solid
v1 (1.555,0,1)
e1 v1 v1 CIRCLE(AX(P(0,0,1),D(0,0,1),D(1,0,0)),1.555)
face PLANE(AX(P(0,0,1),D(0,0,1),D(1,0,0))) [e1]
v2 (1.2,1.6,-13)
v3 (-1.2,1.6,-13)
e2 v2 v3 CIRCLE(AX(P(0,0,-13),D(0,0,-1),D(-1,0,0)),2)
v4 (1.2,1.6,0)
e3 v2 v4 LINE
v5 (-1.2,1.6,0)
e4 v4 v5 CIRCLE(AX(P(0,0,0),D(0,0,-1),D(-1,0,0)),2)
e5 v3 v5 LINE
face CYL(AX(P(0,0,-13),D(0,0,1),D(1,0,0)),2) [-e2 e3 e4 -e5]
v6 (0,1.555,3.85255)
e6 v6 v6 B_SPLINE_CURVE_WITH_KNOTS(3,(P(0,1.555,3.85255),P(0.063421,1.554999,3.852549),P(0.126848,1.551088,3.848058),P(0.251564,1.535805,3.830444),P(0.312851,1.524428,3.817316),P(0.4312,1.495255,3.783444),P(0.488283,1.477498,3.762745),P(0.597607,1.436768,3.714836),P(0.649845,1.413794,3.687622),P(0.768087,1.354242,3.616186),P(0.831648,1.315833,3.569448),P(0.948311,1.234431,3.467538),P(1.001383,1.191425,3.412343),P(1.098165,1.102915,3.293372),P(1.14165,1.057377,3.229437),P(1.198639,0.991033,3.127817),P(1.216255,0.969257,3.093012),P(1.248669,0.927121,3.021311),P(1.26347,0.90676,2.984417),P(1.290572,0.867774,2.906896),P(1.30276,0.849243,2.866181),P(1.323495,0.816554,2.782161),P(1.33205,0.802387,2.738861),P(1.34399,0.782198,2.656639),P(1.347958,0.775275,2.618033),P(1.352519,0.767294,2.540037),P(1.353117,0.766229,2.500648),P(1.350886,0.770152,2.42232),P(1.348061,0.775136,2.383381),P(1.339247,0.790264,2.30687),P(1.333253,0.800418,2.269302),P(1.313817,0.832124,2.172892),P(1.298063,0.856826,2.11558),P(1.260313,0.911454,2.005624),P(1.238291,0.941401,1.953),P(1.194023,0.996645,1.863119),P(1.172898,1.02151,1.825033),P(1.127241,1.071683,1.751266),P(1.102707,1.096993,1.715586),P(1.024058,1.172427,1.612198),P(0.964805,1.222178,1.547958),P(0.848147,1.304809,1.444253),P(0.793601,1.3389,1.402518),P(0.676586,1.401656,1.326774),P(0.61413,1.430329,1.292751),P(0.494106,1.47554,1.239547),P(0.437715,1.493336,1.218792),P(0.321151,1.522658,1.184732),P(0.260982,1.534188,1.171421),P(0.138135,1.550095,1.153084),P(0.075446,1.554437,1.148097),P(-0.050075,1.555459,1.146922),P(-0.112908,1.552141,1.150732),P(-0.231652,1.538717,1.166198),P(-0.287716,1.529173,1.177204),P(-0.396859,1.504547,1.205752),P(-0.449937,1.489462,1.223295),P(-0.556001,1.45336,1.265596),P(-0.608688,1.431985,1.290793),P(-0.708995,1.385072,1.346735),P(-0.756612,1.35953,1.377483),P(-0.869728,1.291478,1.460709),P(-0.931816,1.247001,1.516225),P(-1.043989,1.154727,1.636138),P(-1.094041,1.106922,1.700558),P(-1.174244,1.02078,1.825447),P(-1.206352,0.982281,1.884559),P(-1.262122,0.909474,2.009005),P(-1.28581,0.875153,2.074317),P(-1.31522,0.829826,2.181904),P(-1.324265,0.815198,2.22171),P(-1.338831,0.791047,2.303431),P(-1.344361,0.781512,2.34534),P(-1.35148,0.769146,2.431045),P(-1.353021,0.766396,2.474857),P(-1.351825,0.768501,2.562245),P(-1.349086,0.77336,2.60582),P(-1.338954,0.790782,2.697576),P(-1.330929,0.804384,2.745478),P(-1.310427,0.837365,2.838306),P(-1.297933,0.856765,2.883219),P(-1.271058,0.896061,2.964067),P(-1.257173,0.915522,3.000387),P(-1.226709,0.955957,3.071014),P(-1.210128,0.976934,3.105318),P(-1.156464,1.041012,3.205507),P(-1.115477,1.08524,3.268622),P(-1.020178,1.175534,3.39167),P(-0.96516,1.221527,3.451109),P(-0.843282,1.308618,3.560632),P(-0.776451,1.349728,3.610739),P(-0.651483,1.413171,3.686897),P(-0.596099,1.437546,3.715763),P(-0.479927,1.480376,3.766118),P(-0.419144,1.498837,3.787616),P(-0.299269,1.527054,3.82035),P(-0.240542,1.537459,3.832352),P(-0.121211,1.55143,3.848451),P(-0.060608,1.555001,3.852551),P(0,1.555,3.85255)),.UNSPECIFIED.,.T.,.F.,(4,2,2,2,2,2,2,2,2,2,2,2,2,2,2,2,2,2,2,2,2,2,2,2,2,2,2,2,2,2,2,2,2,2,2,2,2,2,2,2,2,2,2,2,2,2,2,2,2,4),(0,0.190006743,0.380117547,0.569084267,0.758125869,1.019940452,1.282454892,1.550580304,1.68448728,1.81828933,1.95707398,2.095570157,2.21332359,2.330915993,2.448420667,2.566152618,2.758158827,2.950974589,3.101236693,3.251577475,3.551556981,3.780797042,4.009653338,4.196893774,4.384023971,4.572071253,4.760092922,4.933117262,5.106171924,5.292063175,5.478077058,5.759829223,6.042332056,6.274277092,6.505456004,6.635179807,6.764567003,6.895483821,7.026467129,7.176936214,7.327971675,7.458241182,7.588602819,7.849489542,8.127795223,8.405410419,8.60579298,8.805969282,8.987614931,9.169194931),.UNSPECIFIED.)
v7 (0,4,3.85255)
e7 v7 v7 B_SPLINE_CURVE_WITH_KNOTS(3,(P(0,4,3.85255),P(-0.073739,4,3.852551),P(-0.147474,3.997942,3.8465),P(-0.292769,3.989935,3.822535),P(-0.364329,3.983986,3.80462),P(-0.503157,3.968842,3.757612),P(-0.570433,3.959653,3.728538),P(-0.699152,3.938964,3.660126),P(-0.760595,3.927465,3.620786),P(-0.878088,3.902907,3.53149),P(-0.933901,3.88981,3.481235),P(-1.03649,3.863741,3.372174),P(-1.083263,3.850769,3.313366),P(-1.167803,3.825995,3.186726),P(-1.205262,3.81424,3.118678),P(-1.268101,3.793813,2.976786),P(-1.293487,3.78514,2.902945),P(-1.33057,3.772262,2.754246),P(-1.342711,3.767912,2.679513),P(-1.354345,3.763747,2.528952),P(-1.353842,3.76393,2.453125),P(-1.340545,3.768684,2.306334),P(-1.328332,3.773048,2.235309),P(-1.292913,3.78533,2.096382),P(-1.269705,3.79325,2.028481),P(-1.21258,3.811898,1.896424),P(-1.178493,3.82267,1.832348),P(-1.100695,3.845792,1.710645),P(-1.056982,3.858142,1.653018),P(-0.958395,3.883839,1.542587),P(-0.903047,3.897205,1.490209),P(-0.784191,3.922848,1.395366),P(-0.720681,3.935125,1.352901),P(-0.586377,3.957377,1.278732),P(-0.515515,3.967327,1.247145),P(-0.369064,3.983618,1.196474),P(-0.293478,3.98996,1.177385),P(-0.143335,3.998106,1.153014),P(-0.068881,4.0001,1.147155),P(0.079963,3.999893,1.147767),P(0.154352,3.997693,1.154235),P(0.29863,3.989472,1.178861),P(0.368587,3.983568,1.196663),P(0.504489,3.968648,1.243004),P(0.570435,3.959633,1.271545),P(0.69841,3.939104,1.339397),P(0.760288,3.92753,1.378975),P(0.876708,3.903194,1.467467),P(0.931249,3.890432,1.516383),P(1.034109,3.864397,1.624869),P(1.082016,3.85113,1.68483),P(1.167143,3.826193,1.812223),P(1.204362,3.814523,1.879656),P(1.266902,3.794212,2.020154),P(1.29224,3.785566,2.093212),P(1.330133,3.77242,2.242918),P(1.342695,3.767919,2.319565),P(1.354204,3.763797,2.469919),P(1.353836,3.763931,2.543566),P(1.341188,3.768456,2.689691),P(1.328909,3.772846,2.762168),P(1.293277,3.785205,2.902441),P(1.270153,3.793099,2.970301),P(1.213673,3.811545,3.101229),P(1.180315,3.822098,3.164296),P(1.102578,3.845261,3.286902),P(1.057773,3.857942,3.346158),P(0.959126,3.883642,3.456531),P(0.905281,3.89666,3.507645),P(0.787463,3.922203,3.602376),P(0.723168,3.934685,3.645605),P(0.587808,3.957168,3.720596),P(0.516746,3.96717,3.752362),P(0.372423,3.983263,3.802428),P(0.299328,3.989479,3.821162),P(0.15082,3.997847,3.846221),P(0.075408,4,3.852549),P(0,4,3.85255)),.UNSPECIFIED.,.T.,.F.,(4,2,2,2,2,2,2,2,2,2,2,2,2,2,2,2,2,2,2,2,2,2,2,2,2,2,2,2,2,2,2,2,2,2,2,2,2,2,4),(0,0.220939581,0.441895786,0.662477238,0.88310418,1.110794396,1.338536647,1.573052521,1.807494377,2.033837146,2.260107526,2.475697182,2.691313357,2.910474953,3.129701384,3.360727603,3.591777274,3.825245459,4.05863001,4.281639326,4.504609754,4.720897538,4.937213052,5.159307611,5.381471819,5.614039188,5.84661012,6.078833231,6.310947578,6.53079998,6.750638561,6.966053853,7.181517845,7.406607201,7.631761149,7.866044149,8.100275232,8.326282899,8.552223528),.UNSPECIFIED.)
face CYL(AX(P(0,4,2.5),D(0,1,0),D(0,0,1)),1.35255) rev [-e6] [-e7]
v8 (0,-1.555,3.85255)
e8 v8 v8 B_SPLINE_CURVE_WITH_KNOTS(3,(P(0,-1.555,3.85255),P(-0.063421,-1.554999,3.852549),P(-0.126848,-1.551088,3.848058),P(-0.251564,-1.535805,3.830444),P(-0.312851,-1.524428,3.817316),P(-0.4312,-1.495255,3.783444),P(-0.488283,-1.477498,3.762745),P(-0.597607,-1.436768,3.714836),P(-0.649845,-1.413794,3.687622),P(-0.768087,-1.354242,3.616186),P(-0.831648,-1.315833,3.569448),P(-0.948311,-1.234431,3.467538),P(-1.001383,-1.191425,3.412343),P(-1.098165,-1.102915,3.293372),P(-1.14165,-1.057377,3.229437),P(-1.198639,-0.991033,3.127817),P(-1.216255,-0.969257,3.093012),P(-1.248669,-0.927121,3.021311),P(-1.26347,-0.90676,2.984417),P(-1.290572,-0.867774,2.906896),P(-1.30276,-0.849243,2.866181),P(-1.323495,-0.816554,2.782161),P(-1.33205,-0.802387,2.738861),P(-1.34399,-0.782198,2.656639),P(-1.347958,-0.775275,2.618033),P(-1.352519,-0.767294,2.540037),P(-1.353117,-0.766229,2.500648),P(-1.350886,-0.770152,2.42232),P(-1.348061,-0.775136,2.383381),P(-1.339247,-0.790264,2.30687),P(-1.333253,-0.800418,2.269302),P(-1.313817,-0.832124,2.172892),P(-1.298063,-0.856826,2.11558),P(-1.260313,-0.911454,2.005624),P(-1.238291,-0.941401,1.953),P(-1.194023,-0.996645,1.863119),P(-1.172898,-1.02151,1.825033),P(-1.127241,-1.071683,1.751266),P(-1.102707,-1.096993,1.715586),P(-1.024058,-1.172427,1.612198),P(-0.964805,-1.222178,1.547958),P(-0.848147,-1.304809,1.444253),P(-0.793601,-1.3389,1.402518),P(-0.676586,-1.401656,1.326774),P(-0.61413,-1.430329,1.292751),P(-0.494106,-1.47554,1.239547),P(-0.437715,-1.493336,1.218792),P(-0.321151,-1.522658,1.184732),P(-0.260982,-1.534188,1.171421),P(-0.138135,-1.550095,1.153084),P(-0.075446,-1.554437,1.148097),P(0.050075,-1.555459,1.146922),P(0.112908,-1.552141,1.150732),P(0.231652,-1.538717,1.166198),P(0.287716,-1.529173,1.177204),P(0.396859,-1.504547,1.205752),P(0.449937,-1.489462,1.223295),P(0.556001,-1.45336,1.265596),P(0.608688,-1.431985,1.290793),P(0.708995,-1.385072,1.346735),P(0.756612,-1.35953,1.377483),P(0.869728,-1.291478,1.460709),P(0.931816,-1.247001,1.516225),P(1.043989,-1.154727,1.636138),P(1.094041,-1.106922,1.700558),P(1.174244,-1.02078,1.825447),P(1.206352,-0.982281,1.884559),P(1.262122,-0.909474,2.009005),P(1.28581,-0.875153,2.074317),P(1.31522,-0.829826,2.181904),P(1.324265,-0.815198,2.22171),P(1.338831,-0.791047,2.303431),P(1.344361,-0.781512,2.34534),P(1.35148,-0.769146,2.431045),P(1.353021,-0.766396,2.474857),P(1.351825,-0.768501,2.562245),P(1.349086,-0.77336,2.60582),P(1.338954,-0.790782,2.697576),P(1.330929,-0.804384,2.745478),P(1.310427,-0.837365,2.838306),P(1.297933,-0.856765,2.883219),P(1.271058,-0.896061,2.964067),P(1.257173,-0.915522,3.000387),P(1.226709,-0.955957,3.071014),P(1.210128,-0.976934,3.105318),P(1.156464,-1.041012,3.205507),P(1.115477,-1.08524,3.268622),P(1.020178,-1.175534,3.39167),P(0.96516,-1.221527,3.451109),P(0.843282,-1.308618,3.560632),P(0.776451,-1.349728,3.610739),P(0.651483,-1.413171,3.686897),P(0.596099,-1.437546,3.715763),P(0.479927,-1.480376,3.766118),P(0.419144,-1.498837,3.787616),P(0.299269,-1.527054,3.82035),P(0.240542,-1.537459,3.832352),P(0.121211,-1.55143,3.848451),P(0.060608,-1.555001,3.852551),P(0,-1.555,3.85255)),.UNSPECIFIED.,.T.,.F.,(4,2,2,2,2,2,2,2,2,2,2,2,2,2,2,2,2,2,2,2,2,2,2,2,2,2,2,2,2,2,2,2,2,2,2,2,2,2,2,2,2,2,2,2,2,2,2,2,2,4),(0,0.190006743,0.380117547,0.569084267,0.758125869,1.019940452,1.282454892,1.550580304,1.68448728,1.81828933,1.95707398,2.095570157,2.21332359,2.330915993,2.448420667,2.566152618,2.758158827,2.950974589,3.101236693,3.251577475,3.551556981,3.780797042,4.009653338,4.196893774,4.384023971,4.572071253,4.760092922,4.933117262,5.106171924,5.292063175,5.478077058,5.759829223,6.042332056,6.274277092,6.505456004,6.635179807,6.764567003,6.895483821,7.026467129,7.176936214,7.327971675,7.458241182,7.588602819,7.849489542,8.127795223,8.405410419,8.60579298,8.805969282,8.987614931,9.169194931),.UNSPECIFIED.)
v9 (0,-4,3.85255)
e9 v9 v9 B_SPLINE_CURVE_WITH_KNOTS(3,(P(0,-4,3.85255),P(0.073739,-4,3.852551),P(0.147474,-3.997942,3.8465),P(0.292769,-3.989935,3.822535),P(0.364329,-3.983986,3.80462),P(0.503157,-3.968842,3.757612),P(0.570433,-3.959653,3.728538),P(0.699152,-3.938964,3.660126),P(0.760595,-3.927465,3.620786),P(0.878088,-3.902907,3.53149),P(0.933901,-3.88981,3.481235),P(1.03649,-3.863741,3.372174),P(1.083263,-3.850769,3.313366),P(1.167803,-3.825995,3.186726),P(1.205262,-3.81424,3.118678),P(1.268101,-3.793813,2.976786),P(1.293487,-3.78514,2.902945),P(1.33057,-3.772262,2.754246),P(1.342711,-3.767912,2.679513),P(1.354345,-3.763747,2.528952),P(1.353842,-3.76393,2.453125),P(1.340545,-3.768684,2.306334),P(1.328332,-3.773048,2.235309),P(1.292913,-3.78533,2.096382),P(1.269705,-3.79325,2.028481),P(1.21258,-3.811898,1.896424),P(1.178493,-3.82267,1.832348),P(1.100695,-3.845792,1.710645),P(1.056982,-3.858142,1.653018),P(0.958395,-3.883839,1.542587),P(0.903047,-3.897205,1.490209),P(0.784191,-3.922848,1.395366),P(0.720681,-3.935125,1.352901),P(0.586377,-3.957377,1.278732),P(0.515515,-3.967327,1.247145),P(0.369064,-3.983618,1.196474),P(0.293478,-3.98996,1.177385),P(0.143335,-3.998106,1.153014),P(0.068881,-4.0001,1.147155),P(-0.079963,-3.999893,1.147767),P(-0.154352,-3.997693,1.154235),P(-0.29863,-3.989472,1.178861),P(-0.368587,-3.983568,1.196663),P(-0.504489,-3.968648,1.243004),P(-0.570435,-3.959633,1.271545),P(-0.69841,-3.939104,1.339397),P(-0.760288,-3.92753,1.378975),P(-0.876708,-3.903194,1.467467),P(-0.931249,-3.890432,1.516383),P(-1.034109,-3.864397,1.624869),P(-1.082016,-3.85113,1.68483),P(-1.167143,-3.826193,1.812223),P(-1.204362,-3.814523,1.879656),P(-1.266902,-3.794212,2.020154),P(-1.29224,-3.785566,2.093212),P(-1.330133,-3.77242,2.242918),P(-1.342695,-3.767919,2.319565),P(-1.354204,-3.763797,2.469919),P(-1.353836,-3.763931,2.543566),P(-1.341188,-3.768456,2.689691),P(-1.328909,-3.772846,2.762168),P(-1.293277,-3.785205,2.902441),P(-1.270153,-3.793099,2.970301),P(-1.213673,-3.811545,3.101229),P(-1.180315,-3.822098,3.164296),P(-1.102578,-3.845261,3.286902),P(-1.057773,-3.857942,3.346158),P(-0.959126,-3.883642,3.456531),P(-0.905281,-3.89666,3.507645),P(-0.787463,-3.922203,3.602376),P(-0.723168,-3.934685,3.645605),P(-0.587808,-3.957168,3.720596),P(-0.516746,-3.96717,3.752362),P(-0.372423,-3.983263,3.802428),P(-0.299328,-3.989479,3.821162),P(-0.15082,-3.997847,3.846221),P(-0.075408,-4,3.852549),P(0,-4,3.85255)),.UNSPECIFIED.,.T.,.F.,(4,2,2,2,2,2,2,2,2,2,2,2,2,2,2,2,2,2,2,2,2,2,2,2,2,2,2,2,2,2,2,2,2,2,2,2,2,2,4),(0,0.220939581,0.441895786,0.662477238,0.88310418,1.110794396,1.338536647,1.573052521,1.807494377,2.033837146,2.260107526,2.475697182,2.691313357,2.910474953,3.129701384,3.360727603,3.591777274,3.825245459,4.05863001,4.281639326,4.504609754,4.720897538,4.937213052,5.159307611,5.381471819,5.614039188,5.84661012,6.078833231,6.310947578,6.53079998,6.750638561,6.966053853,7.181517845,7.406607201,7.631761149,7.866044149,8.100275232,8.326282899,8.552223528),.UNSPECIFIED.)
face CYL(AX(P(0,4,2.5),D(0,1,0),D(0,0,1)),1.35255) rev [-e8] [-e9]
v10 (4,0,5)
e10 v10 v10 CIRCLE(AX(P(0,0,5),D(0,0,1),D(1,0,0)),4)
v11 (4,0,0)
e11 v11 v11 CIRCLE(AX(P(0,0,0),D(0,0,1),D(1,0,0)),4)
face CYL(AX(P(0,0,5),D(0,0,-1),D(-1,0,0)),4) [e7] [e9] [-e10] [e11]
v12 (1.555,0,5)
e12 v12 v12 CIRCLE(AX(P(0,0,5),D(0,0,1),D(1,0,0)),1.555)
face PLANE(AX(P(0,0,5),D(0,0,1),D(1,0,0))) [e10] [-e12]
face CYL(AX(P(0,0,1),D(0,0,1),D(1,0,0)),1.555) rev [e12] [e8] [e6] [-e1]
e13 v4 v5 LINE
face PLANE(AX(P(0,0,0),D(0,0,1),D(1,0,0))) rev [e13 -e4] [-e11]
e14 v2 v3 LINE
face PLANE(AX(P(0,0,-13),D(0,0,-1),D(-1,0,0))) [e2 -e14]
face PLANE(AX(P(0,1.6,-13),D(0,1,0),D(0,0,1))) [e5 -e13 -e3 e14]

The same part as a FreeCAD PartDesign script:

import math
import FreeCAD as App
import Part
import Sketcher
from FreeCAD import Vector
Q = App.Units.Quantity

doc = App.newDocument("Part")
body = doc.addObject("PartDesign::Body", "Body")

# Sketch on XY plane
sketch1 = body.newObject("Sketcher::SketchObject", "Sketch")
sketch1.AttachmentSupport = (doc.getObject("XY_Plane"), [""])
sketch1.MapMode = "FlatFace"
sketch1.addGeometry(Part.Circle(Vector(0, 0, 0), Vector(0, 0, 1), 4), False)
sketch1.addConstraint([
    Sketcher.Constraint("Coincident", 0, 3, -1, 1),
    Sketcher.Constraint("Diameter", 0, Q("8 mm")),
])
pad1 = body.newObject("PartDesign::Pad", "Pad")
pad1.Profile = sketch1
pad1.Length = 5

# Sketch on XY plane
sketch2 = body.newObject("Sketcher::SketchObject", "Sketch001")
sketch2.AttachmentSupport = (doc.getObject("XY_Plane"), [""])
sketch2.MapMode = "FlatFace"
sketch2.AttachmentOffset = App.Placement(Vector(0, 0, 5), App.Rotation())
sketch2.addGeometry(Part.Circle(Vector(0, 0, 0), Vector(0, 0, 1), 1.6), False)
sketch2.addConstraint([
    Sketcher.Constraint("Coincident", 0, 3, -1, 1),
    Sketcher.Constraint("Diameter", 0, Q("3.11 mm")),
])
pocket1 = body.newObject("PartDesign::Pocket", "Pocket")
pocket1.Profile = sketch2
pocket1.Length = 4

# Sketch on XY plane
sketch3 = body.newObject("Sketcher::SketchObject", "Sketch002")
sketch3.AttachmentSupport = (doc.getObject("XY_Plane"), [""])
sketch3.MapMode = "FlatFace"
sketch3.addGeometry([
    Part.LineSegment(Vector(-1.2, 1.6, 0), Vector(1.2, 1.6, 0)),
    Part.ArcOfCircle(Part.Circle(Vector(0, 0, 0), Vector(0, 0, 1), 2), math.radians(127), math.radians(413)),
], False)
sketch3.addConstraint([
    Sketcher.Constraint("Coincident", 0, 1, 1, 1),
    Sketcher.Constraint("Coincident", 1, 2, 0, 2),
    Sketcher.Constraint("Horizontal", 0),
    Sketcher.Constraint("Coincident", 1, 3, -1, 1),
    Sketcher.Constraint("Radius", 1, Q("2 mm")),
    Sketcher.Constraint("DistanceX", 0, 1, 0, 2, Q("2.4 mm")),
])
pad2 = body.newObject("PartDesign::Pad", "Pad001")
pad2.Profile = sketch3
pad2.Length = 13
pad2.Reversed = True

# Sketch on XZ plane
sketch4 = body.newObject("Sketcher::SketchObject", "Sketch003")
sketch4.AttachmentSupport = (doc.getObject("XZ_Plane"), [""])
sketch4.MapMode = "FlatFace"
sketch4.AttachmentOffset = App.Placement(Vector(0, 0, -4), App.Rotation())
sketch4.addGeometry(Part.Circle(Vector(0, 2.5, 0), Vector(0, 0, 1), 1.4), False)
sketch4.addConstraint([
    Sketcher.Constraint("PointOnObject", 0, 3, -2),
    Sketcher.Constraint("Diameter", 0, Q("2.7051 mm")),
    Sketcher.Constraint("DistanceY", -1, 1, 0, 3, Q("2.5 mm")),
])
doc.recompute()
hole = body.newObject("PartDesign::Hole", "Hole")
hole.Profile = sketch4
hole.ThreadType = "None"
hole.Diameter = 2.7051
hole.DepthType = "ThroughAll"
hole.Reversed = True

doc.recompute()
